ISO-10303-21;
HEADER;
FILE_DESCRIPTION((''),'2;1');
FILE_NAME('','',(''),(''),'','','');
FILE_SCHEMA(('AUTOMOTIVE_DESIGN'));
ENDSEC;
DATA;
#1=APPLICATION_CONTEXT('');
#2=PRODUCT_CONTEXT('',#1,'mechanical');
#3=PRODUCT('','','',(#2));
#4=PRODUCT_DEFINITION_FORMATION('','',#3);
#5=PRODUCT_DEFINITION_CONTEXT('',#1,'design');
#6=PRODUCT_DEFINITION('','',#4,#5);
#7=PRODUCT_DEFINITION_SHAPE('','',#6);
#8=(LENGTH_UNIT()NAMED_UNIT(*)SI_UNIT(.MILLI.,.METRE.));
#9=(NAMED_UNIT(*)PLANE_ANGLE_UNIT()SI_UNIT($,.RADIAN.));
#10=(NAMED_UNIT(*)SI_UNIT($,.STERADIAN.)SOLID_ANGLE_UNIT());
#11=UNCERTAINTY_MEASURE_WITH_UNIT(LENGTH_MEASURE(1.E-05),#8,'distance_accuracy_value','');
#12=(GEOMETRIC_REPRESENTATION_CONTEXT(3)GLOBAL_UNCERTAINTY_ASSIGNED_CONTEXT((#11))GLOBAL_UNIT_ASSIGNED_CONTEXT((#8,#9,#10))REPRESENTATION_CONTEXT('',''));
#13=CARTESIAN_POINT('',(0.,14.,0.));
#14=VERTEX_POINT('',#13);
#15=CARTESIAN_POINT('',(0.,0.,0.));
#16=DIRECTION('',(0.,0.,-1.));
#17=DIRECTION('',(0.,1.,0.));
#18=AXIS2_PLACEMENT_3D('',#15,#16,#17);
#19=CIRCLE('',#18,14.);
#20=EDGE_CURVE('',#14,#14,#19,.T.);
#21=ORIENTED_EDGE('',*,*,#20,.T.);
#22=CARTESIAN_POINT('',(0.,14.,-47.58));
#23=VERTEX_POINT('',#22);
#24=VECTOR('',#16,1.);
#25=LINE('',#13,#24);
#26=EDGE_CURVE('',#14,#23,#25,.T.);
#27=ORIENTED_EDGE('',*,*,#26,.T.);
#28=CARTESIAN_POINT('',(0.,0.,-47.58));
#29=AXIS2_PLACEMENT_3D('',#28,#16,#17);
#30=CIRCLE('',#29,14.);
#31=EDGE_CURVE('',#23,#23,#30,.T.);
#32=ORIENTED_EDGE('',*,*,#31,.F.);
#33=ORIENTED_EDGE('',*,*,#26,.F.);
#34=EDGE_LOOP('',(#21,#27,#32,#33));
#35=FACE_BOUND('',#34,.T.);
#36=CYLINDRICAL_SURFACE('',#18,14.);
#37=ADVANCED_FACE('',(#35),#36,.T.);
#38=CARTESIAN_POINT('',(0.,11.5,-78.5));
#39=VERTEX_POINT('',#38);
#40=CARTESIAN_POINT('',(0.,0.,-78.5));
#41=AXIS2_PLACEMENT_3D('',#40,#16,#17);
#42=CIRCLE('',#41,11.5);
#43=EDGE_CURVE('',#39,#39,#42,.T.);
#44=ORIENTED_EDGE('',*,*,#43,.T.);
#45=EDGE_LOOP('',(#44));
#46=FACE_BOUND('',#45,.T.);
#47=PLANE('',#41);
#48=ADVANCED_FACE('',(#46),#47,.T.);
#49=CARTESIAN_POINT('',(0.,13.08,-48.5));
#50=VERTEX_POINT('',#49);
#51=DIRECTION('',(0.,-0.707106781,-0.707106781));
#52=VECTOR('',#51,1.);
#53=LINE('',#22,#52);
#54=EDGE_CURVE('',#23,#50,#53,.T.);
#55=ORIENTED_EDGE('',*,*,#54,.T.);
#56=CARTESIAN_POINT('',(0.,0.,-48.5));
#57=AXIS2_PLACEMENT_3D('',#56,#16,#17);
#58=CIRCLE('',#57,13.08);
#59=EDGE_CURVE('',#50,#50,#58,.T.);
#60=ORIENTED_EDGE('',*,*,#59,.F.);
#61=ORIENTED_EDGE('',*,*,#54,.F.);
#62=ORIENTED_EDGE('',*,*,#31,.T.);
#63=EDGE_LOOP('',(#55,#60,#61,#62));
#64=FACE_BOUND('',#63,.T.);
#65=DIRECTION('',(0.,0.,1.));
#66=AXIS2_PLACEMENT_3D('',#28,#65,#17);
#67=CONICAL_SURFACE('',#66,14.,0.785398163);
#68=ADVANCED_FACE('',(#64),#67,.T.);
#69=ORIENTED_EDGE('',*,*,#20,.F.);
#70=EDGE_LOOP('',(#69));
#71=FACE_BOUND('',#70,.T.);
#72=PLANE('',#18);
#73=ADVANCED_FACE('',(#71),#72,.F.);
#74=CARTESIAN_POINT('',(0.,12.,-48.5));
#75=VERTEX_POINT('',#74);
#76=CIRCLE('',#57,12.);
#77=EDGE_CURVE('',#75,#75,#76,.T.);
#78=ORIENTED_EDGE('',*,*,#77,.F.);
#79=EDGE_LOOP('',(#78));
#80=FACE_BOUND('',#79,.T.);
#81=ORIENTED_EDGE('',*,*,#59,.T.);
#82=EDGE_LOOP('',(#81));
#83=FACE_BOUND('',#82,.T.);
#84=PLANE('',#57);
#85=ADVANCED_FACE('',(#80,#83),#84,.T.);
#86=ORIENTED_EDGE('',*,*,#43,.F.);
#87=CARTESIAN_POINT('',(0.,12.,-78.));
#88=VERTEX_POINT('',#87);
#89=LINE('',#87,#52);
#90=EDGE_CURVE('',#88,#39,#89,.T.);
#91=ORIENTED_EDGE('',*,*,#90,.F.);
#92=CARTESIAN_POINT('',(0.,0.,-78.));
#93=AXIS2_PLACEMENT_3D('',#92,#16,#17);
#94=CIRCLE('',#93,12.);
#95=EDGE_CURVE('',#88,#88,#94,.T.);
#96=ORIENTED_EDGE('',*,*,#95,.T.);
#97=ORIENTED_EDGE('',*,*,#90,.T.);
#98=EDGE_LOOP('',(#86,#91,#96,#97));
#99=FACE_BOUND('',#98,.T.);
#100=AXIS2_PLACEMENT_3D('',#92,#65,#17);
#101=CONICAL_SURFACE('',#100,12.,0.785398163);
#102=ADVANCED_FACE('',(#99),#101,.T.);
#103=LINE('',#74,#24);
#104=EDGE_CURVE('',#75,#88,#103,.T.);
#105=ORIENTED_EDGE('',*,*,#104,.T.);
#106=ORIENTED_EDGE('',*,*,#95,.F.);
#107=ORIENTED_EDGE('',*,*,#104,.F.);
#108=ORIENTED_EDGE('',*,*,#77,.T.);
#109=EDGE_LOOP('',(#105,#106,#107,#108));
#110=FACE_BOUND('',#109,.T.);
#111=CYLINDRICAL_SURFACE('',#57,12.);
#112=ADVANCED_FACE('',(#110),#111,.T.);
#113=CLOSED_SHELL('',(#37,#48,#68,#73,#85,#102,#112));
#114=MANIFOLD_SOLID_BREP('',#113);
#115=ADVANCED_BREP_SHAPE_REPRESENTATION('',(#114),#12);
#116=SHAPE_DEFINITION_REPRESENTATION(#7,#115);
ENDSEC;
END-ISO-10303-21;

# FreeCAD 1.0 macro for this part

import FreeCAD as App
import Part
import Sketcher
from FreeCAD import Vector
Q = App.Units.Quantity


def add_polygon(sketch, points):
    """Adds a closed chain of lines whose ends are joined by coincident constraints."""
    first, n = sketch.GeometryCount, len(points)
    for a, b in zip(points, points[1:] + points[:1]):
        sketch.addGeometry(Part.LineSegment(App.Vector(*a, 0), App.Vector(*b, 0)), False)
    for i in range(n):
        sketch.addConstraint(Sketcher.Constraint("Coincident", first + i, 2, first + (i + 1) % n, 1))

doc = App.newDocument("Part")
body = doc.addObject("PartDesign::Body", "Body")

# Sketch on YZ plane
sketch1 = body.newObject("Sketcher::SketchObject", "Sketch")
sketch1.AttachmentSupport = (doc.getObject("YZ_Plane"), [""])
sketch1.MapMode = "FlatFace"
add_polygon(sketch1, [(0, 0), (0, -78.5), (11.5, -78.5), (12, -78), (12, -48.5), (13.1, -48.5), (14, -47.6), (14, 0)])  # lines 0-7
sketch1.addConstraint([
    Sketcher.Constraint("Vertical", 0),
    Sketcher.Constraint("Horizontal", 1),
    Sketcher.Constraint("Vertical", 3),
    Sketcher.Constraint("Horizontal", 4),
    Sketcher.Constraint("Vertical", 6),
    Sketcher.Constraint("Horizontal", 7),
    Sketcher.Constraint("Coincident", 7, 2, -1, 1),
    Sketcher.Constraint("Parallel", 2, 5),
    Sketcher.Constraint("DistanceX", 7, 2, 7, 1, Q("14 mm")),
    Sketcher.Constraint("Angle", 2, Q("45 deg")),
    Sketcher.Constraint("DistanceX", 1, 1, 1, 2, Q("11.5 mm")),
    Sketcher.Constraint("DistanceY", 0, 2, 0, 1, Q("78.5 mm")),
    Sketcher.Constraint("DistanceY", 3, 1, 3, 2, Q("29.5 mm")),
    Sketcher.Constraint("DistanceX", -1, 1, 2, 2, Q("12 mm")),
    Sketcher.Constraint("DistanceX", 4, 1, 4, 2, Q("1.08 mm")),
])
revolution = body.newObject("PartDesign::Revolution", "Revolution")
revolution.Profile = sketch1
revolution.ReferenceAxis = (sketch1, ["V_Axis"])
revolution.Angle = 360

doc.recompute()
